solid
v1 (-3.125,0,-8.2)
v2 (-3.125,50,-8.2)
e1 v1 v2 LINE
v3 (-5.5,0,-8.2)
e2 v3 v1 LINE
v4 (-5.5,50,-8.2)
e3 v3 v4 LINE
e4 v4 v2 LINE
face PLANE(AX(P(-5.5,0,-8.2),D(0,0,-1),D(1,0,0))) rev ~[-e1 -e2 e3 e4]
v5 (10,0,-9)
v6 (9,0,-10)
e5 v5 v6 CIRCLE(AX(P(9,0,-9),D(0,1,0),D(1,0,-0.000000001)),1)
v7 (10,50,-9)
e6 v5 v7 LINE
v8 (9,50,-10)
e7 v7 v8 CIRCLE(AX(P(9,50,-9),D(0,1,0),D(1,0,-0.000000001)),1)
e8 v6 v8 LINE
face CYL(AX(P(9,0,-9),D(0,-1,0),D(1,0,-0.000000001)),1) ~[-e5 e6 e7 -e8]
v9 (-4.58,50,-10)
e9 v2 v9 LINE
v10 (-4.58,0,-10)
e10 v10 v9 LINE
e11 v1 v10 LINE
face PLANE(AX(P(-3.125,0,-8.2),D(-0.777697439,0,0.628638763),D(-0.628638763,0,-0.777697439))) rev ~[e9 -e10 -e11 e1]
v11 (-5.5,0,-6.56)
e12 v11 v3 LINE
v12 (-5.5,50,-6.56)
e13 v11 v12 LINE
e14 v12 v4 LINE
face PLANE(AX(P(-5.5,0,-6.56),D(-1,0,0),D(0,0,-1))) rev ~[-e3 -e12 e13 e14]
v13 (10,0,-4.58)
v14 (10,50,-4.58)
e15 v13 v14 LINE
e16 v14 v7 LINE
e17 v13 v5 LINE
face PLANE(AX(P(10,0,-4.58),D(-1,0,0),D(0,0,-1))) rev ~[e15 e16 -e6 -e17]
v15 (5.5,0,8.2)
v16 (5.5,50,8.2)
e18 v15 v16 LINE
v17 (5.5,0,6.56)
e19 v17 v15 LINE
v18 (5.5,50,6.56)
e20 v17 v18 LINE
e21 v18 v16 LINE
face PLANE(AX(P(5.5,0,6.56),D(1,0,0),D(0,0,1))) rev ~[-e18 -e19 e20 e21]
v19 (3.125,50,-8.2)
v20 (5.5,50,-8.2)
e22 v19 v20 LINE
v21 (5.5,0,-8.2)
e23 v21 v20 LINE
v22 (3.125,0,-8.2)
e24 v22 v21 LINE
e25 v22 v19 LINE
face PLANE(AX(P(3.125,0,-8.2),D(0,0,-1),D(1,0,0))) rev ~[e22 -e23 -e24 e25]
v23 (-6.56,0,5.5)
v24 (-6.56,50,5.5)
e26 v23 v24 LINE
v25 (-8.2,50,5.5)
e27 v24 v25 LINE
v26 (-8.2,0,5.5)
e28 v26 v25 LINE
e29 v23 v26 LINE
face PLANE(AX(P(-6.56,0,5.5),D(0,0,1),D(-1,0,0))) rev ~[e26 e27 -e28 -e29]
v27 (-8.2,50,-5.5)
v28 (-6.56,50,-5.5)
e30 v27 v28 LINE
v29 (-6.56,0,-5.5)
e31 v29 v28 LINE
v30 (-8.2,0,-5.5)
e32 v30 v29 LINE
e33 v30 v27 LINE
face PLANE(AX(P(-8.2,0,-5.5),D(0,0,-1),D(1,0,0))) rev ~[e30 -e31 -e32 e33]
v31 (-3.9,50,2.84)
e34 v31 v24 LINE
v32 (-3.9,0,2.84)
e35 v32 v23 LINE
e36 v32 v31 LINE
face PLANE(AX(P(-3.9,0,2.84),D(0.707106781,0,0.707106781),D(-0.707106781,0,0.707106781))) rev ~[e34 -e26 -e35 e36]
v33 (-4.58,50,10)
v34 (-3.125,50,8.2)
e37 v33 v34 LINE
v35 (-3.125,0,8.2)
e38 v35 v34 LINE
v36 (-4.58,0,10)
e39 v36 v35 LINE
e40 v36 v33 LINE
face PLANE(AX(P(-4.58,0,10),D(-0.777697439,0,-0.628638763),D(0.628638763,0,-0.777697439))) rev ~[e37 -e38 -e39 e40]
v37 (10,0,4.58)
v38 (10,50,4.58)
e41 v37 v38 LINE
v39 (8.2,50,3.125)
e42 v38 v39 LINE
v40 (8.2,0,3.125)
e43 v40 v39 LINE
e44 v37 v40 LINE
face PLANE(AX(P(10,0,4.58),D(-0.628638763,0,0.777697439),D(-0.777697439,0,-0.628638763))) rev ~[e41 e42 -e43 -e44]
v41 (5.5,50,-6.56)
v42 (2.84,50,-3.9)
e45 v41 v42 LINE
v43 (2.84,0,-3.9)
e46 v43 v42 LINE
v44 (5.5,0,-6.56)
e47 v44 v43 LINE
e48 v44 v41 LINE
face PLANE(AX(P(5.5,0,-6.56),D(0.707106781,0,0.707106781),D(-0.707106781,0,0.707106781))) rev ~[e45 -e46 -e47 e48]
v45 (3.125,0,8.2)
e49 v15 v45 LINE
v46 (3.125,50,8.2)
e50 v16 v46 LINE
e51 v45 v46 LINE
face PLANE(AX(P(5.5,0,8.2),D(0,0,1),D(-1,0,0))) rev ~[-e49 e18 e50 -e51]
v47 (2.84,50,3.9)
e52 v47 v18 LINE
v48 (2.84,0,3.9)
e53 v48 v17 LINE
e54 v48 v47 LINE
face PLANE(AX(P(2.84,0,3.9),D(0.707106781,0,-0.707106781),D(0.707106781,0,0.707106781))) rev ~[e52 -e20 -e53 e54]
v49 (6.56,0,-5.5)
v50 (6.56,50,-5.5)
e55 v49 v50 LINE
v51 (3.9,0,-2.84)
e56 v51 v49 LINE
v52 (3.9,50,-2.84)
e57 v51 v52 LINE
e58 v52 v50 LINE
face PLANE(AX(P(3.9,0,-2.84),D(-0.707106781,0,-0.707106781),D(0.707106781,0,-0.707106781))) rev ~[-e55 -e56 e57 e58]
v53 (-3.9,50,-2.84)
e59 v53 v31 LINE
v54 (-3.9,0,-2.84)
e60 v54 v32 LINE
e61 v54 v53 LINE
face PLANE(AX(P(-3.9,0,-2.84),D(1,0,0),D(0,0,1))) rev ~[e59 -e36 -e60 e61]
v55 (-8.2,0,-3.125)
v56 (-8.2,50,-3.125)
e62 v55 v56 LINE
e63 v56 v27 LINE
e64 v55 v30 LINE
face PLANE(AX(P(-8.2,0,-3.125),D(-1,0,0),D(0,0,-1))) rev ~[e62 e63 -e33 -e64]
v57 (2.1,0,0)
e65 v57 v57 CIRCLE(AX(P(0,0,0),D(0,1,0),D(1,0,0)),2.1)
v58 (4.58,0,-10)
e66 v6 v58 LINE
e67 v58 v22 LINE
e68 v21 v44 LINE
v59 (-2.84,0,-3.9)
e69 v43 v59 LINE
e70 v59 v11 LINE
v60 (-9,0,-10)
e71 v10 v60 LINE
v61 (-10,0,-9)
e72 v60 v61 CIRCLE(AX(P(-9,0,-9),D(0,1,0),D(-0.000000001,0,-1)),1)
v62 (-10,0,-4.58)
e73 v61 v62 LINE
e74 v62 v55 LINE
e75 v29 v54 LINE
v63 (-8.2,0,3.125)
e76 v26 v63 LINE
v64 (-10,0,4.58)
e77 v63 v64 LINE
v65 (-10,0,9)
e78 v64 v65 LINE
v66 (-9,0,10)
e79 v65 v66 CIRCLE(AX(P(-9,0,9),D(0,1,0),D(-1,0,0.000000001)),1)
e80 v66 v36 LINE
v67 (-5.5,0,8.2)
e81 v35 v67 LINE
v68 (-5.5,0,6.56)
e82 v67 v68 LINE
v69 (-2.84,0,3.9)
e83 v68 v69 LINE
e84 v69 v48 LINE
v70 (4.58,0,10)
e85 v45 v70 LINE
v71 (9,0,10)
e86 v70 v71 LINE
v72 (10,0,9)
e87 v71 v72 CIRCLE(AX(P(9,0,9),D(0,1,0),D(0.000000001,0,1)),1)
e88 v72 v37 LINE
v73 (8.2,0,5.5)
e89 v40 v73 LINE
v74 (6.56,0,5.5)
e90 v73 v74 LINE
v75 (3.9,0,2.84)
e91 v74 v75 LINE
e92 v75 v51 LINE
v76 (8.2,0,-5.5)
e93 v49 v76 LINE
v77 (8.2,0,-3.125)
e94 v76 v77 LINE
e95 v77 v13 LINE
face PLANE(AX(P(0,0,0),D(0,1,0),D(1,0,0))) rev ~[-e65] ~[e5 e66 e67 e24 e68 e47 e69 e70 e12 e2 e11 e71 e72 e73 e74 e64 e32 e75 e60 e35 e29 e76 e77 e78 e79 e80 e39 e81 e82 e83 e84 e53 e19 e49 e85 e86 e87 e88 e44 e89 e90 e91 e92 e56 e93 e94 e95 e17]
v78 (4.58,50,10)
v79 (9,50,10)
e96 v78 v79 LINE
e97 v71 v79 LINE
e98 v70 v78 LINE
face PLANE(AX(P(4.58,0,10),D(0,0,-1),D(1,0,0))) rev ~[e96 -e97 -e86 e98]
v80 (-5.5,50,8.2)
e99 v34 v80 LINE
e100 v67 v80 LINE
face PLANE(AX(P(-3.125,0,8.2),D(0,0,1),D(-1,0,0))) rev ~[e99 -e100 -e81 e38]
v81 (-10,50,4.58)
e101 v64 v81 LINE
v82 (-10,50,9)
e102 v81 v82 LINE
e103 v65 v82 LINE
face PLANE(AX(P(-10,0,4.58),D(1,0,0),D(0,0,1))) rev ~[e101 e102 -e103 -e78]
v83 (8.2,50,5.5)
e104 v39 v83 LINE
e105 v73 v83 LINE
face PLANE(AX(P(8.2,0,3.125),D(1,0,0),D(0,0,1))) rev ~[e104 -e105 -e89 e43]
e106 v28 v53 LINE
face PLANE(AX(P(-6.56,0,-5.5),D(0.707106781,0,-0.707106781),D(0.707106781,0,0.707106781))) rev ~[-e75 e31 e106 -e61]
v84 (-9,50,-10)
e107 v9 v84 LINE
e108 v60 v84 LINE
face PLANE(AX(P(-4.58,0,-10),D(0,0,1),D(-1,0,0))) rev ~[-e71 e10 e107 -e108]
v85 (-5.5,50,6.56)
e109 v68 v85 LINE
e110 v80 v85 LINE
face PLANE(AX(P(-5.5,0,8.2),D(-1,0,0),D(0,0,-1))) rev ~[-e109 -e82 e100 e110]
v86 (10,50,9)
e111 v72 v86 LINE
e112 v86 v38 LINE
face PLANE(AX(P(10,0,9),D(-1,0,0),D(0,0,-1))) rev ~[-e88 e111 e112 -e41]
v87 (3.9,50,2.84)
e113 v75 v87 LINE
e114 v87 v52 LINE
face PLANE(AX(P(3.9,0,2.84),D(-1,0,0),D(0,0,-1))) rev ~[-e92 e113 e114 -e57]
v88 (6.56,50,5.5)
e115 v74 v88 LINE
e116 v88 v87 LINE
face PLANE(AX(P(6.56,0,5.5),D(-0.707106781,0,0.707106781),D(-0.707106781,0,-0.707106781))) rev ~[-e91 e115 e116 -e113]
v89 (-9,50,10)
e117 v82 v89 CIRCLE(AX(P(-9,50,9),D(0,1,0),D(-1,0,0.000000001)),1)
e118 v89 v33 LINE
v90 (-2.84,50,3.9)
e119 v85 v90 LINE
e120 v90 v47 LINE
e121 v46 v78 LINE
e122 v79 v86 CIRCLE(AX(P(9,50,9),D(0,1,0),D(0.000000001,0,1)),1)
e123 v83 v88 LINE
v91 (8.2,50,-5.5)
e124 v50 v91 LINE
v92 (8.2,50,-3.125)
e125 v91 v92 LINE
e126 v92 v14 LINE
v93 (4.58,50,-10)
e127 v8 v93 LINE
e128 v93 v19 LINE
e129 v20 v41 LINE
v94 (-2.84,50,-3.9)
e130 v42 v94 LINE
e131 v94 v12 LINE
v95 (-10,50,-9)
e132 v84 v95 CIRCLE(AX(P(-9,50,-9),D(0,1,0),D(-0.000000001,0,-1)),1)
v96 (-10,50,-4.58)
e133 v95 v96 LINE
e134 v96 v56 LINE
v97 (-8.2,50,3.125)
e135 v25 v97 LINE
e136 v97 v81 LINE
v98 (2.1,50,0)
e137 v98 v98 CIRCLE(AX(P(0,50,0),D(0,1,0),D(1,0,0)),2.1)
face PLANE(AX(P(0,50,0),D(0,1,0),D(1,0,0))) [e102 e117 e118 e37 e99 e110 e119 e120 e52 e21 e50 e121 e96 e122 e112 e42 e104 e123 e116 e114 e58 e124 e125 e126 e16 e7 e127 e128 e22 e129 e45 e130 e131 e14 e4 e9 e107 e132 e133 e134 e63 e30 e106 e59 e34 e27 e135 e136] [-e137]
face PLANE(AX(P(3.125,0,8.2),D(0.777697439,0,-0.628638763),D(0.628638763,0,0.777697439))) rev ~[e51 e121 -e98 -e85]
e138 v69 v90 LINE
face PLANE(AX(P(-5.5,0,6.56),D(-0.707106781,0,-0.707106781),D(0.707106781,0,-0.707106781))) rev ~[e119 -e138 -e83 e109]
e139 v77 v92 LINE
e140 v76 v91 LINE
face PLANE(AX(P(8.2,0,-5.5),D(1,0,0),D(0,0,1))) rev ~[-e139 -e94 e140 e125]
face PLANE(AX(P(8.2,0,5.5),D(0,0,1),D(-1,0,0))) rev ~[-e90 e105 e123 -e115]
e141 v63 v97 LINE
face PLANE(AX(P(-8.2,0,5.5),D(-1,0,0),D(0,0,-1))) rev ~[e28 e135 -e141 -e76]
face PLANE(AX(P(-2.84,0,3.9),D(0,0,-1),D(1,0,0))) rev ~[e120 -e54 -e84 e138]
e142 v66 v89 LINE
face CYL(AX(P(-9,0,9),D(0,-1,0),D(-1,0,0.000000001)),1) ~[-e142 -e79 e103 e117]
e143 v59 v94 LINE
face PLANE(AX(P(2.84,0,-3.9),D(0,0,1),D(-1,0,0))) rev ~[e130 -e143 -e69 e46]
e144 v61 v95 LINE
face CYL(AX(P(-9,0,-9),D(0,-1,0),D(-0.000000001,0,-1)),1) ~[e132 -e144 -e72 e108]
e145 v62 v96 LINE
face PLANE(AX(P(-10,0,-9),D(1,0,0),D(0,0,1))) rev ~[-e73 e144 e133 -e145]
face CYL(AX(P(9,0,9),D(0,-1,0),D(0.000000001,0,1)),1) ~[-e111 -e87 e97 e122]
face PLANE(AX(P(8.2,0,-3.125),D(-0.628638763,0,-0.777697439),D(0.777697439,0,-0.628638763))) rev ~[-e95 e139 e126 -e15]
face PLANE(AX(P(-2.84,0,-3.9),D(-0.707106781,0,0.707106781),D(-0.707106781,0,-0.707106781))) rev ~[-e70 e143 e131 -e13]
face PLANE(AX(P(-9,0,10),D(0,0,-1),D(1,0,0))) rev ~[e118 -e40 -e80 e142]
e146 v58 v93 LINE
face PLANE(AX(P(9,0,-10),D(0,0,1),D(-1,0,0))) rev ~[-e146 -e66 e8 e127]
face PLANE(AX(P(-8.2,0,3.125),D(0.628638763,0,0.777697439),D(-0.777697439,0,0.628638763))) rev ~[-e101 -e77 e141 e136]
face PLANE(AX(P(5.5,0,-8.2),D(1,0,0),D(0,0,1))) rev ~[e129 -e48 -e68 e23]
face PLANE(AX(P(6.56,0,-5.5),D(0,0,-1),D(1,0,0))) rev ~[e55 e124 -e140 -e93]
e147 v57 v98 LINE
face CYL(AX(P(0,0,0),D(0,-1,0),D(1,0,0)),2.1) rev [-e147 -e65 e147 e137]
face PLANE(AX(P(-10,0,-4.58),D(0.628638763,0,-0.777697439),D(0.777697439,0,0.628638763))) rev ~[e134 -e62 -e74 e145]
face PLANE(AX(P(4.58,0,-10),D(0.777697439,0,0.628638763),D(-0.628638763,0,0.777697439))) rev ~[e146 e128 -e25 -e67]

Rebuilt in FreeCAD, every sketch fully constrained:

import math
import FreeCAD as App
import Part
import Sketcher

V = App.Vector

doc = App.newDocument("Part")
params = doc.addObject("Spreadsheet::Sheet", "Params")
for row, (alias, value) in enumerate([
    ("sketch1_radius", "1 mm"),
    ("sketch1_diameter", "4.2 mm"),
    ("sketch1_width", "4.42 mm"),
    ("sketch1_width2", "1.64 mm"),
    ("sketch1_width3", "5.68 mm"),
    ("pad1_length", "50 mm"),
], start=1):
    params.set(f"A{row}", alias)
    params.set(f"B{row}", "=" + value)
    params.setAlias(f"B{row}", alias)

body = doc.addObject("PartDesign::Body", "Body")

# Sketch on XZ plane
sketch1 = doc.addObject("Sketcher::SketchObject", "Sketch")
body.addObject(sketch1)
sketch1.AttachmentSupport = (doc.XZ_Plane, [""])
sketch1.MapMode = "FlatFace"
sketch1.addGeometry([
    Part.LineSegment(V(-5.5, -8.2, 0), V(-3.1, -8.2, 0)),  # 0
    Part.LineSegment(V(-3.1, -8.2, 0), V(-4.6, -10, 0)),  # 1
    Part.LineSegment(V(-4.6, -10, 0), V(-9, -10, 0)),  # 2
    Part.ArcOfCircle(Part.Circle(V(-9, -9, 0), V(0, 0, 1), 1), math.radians(-180), math.radians(-90)),  # 3
    Part.LineSegment(V(-10, -9, 0), V(-10, -4.6, 0)),  # 4
    Part.LineSegment(V(-10, -4.6, 0), V(-8.2, -3.1, 0)),  # 5
    Part.LineSegment(V(-8.2, -3.1, 0), V(-8.2, -5.5, 0)),  # 6
    Part.LineSegment(V(-8.2, -5.5, 0), V(-6.6, -5.5, 0)),  # 7
    Part.LineSegment(V(-6.6, -5.5, 0), V(-3.9, -2.8, 0)),  # 8
    Part.LineSegment(V(-3.9, -2.8, 0), V(-3.9, 2.8, 0)),  # 9
    Part.LineSegment(V(-3.9, 2.8, 0), V(-6.6, 5.5, 0)),  # 10
    Part.LineSegment(V(-6.6, 5.5, 0), V(-8.2, 5.5, 0)),  # 11
    Part.LineSegment(V(-8.2, 5.5, 0), V(-8.2, 3.1, 0)),  # 12
    Part.LineSegment(V(-8.2, 3.1, 0), V(-10, 4.6, 0)),  # 13
    Part.LineSegment(V(-10, 4.6, 0), V(-10, 9, 0)),  # 14
    Part.ArcOfCircle(Part.Circle(V(-9, 9, 0), V(0, 0, 1), 1), math.radians(90), math.radians(180)),  # 15
    Part.LineSegment(V(-9, 10, 0), V(-4.6, 10, 0)),  # 16
    Part.LineSegment(V(-4.6, 10, 0), V(-3.1, 8.2, 0)),  # 17
    Part.LineSegment(V(-3.1, 8.2, 0), V(-5.5, 8.2, 0)),  # 18
    Part.LineSegment(V(-5.5, 8.2, 0), V(-5.5, 6.6, 0)),  # 19
    Part.LineSegment(V(-5.5, 6.6, 0), V(-2.8, 3.9, 0)),  # 20
    Part.LineSegment(V(-2.8, 3.9, 0), V(2.8, 3.9, 0)),  # 21
    Part.LineSegment(V(2.8, 3.9, 0), V(5.5, 6.6, 0)),  # 22
    Part.LineSegment(V(5.5, 6.6, 0), V(5.5, 8.2, 0)),  # 23
    Part.LineSegment(V(5.5, 8.2, 0), V(3.1, 8.2, 0)),  # 24
    Part.LineSegment(V(3.1, 8.2, 0), V(4.6, 10, 0)),  # 25
    Part.LineSegment(V(4.6, 10, 0), V(9, 10, 0)),  # 26
    Part.ArcOfCircle(Part.Circle(V(9, 9, 0), V(0, 0, 1), 1), math.radians(0), math.radians(90)),  # 27
    Part.LineSegment(V(10, 9, 0), V(10, 4.6, 0)),  # 28
    Part.LineSegment(V(10, 4.6, 0), V(8.2, 3.1, 0)),  # 29
    Part.LineSegment(V(8.2, 3.1, 0), V(8.2, 5.5, 0)),  # 30
    Part.LineSegment(V(8.2, 5.5, 0), V(6.6, 5.5, 0)),  # 31
    Part.LineSegment(V(6.6, 5.5, 0), V(3.9, 2.8, 0)),  # 32
    Part.LineSegment(V(3.9, 2.8, 0), V(3.9, -2.8, 0)),  # 33
    Part.LineSegment(V(3.9, -2.8, 0), V(6.6, -5.5, 0)),  # 34
    Part.LineSegment(V(6.6, -5.5, 0), V(8.2, -5.5, 0)),  # 35
    Part.LineSegment(V(8.2, -5.5, 0), V(8.2, -3.1, 0)),  # 36
    Part.LineSegment(V(8.2, -3.1, 0), V(10, -4.6, 0)),  # 37
    Part.LineSegment(V(10, -4.6, 0), V(10, -9, 0)),  # 38
    Part.ArcOfCircle(Part.Circle(V(9, -9, 0), V(0, 0, 1), 1), math.radians(-90), math.radians(0)),  # 39
    Part.LineSegment(V(9, -10, 0), V(4.6, -10, 0)),  # 40
    Part.LineSegment(V(4.6, -10, 0), V(3.1, -8.2, 0)),  # 41
    Part.LineSegment(V(3.1, -8.2, 0), V(5.5, -8.2, 0)),  # 42
    Part.LineSegment(V(5.5, -8.2, 0), V(5.5, -6.6, 0)),  # 43
    Part.LineSegment(V(5.5, -6.6, 0), V(2.8, -3.9, 0)),  # 44
    Part.LineSegment(V(2.8, -3.9, 0), V(-2.8, -3.9, 0)),  # 45
    Part.LineSegment(V(-2.8, -3.9, 0), V(-5.5, -6.6, 0)),  # 46
    Part.LineSegment(V(-5.5, -6.6, 0), V(-5.5, -8.2, 0)),  # 47
    Part.Circle(V(0, 0, 0), V(0, 0, 1), 2.1),  # 48
], False)
sketch1.addConstraint([
    Sketcher.Constraint("Coincident", 0, 2, 1, 1),
    Sketcher.Constraint("Coincident", 1, 2, 2, 1),
    Sketcher.Constraint("Tangent", 2, 2, 3, 2),
    Sketcher.Constraint("Tangent", 3, 1, 4, 1),
    Sketcher.Constraint("Coincident", 4, 2, 5, 1),
    Sketcher.Constraint("Coincident", 5, 2, 6, 1),
    Sketcher.Constraint("Coincident", 6, 2, 7, 1),
    Sketcher.Constraint("Coincident", 7, 2, 8, 1),
    Sketcher.Constraint("Coincident", 8, 2, 9, 1),
    Sketcher.Constraint("Coincident", 9, 2, 10, 1),
    Sketcher.Constraint("Coincident", 10, 2, 11, 1),
    Sketcher.Constraint("Coincident", 11, 2, 12, 1),
    Sketcher.Constraint("Coincident", 12, 2, 13, 1),
    Sketcher.Constraint("Coincident", 13, 2, 14, 1),
    Sketcher.Constraint("Tangent", 14, 2, 15, 2),
    Sketcher.Constraint("Tangent", 15, 1, 16, 1),
    Sketcher.Constraint("Coincident", 16, 2, 17, 1),
    Sketcher.Constraint("Coincident", 17, 2, 18, 1),
    Sketcher.Constraint("Coincident", 18, 2, 19, 1),
    Sketcher.Constraint("Coincident", 19, 2, 20, 1),
    Sketcher.Constraint("Coincident", 20, 2, 21, 1),
    Sketcher.Constraint("Coincident", 21, 2, 22, 1),
    Sketcher.Constraint("Coincident", 22, 2, 23, 1),
    Sketcher.Constraint("Coincident", 23, 2, 24, 1),
    Sketcher.Constraint("Coincident", 24, 2, 25, 1),
    Sketcher.Constraint("Coincident", 25, 2, 26, 1),
    Sketcher.Constraint("Tangent", 26, 2, 27, 2),
    Sketcher.Constraint("Tangent", 27, 1, 28, 1),
    Sketcher.Constraint("Coincident", 28, 2, 29, 1),
    Sketcher.Constraint("Coincident", 29, 2, 30, 1),
    Sketcher.Constraint("Coincident", 30, 2, 31, 1),
    Sketcher.Constraint("Coincident", 31, 2, 32, 1),
    Sketcher.Constraint("Coincident", 32, 2, 33, 1),
    Sketcher.Constraint("Coincident", 33, 2, 34, 1),
    Sketcher.Constraint("Coincident", 34, 2, 35, 1),
    Sketcher.Constraint("Coincident", 35, 2, 36, 1),
    Sketcher.Constraint("Coincident", 36, 2, 37, 1),
    Sketcher.Constraint("Coincident", 37, 2, 38, 1),
    Sketcher.Constraint("Tangent", 38, 2, 39, 2),
    Sketcher.Constraint("Tangent", 39, 1, 40, 1),
    Sketcher.Constraint("Coincident", 40, 2, 41, 1),
    Sketcher.Constraint("Coincident", 41, 2, 42, 1),
    Sketcher.Constraint("Coincident", 42, 2, 43, 1),
    Sketcher.Constraint("Coincident", 43, 2, 44, 1),
    Sketcher.Constraint("Coincident", 44, 2, 45, 1),
    Sketcher.Constraint("Coincident", 45, 2, 46, 1),
    Sketcher.Constraint("Coincident", 46, 2, 47, 1),
    Sketcher.Constraint("Coincident", 47, 2, 0, 1),
    Sketcher.Constraint("Horizontal", 0),
    Sketcher.Constraint("Horizontal", 2),
    Sketcher.Constraint("Vertical", 4),
    Sketcher.Constraint("Vertical", 6),
    Sketcher.Constraint("Horizontal", 7),
    Sketcher.Constraint("Vertical", 9),
    Sketcher.Constraint("Horizontal", 11),
    Sketcher.Constraint("Vertical", 12),
    Sketcher.Constraint("Vertical", 14),
    Sketcher.Constraint("Horizontal", 16),
    Sketcher.Constraint("Horizontal", 18),
    Sketcher.Constraint("Vertical", 19),
    Sketcher.Constraint("Horizontal", 21),
    Sketcher.Constraint("Vertical", 23),
    Sketcher.Constraint("Horizontal", 24),
    Sketcher.Constraint("Horizontal", 26),
    Sketcher.Constraint("Vertical", 28),
    Sketcher.Constraint("Vertical", 30),
    Sketcher.Constraint("Horizontal", 31),
    Sketcher.Constraint("Vertical", 33),
    Sketcher.Constraint("Horizontal", 35),
    Sketcher.Constraint("Vertical", 36),
    Sketcher.Constraint("Vertical", 38),
    Sketcher.Constraint("Horizontal", 40),
    Sketcher.Constraint("Horizontal", 42),
    Sketcher.Constraint("Vertical", 43),
    Sketcher.Constraint("Horizontal", 45),
    Sketcher.Constraint("Vertical", 47),
    Sketcher.Constraint("Coincident", 48, 3, -1, 1),
    Sketcher.Constraint("Equal", 3, 15),
    Sketcher.Constraint("Equal", 15, 27),
    Sketcher.Constraint("Equal", 27, 39),
    Sketcher.Constraint("Symmetric", 3, 3, 27, 3, -1, 1),
    Sketcher.Constraint("Symmetric", 15, 3, 39, 3, -1, 1),
    Sketcher.Constraint("Symmetric", 0, 2, 24, 2, -1, 1),
    Sketcher.Constraint("Symmetric", 5, 2, 29, 2, -1, 1),
    Sketcher.Constraint("Symmetric", 7, 2, 31, 2, -1, 1),
    Sketcher.Constraint("Symmetric", 8, 2, 32, 2, -1, 1),
    Sketcher.Constraint("Symmetric", 10, 2, 34, 2, -1, 1),
    Sketcher.Constraint("Symmetric", 12, 2, 36, 2, -1, 1),
    Sketcher.Constraint("Symmetric", 17, 2, 41, 2, -1, 1),
    Sketcher.Constraint("Symmetric", 19, 2, 43, 2, -1, 1),
    Sketcher.Constraint("Symmetric", 20, 2, 44, 2, -1, 1),
    Sketcher.Constraint("Symmetric", 22, 2, 46, 2, -1, 1),
    Sketcher.Constraint("Symmetric", 15, 3, 27, 3, -2),
    Sketcher.Constraint("Symmetric", 19, 2, 22, 2, -2),
    Sketcher.Constraint("Symmetric", 17, 2, 24, 2, -2),
    Sketcher.Constraint("Symmetric", 12, 2, 29, 2, -2),
    Sketcher.Constraint("Symmetric", 10, 2, 31, 2, -2),
    Sketcher.Constraint("Perpendicular", 8, 10),
    Sketcher.Constraint("Perpendicular", 1, 13),
    Sketcher.Constraint("Perpendicular", 5, 17),
    Sketcher.Constraint("Parallel", 10, 20),
    Sketcher.Constraint("Perpendicular", 20, 22),
    Sketcher.Constraint("Perpendicular", 13, 25),
    Sketcher.Constraint("Perpendicular", 17, 29),
    Sketcher.Constraint("Perpendicular", 32, 34),
    Sketcher.Constraint("Perpendicular", 25, 37),
    Sketcher.Constraint("Perpendicular", 29, 41),
    Sketcher.Constraint("Perpendicular", 44, 46),
    Sketcher.Constraint("Horizontal", 13, 2, 28, 2),
    Sketcher.Constraint("Horizontal", 9, 2, 32, 2),
    Sketcher.Constraint("Equal", 40, 4),
    Sketcher.Constraint("Equal", 42, 6),
    Sketcher.Constraint("Equal", 45, 9),
    Sketcher.Constraint("Equal", 35, 19),
    Sketcher.Constraint("Equal", 1, 5),
    Sketcher.Constraint("Equal", 10, 20),
    Sketcher.Constraint("Radius", 3, 1.0),
    Sketcher.Constraint("Diameter", 48, 4.2),
    Sketcher.Constraint("DistanceX", 3, 3, -1, 1, 9.0),
    Sketcher.Constraint("DistanceX", 2, 2, 2, 1, 4.42),
    Sketcher.Constraint("DistanceX", 7, 1, 7, 2, 1.64),
    Sketcher.Constraint("DistanceX", 21, 1, 21, 2, 5.68),
    Sketcher.Constraint("DistanceY", 0, 2, -1, 1, 8.2),
    Sketcher.Constraint("DistanceY", 6, 2, -1, 1, 5.5),
    Sketcher.Constraint("DistanceX", 0, 1, 0, 2, 2.375),
])
sketch1.setExpression("Constraints[116]", "Params.sketch1_radius")
sketch1.setExpression("Constraints[117]", "Params.sketch1_diameter")
sketch1.setExpression("Constraints[119]", "Params.sketch1_width")
sketch1.setExpression("Constraints[120]", "Params.sketch1_width2")
sketch1.setExpression("Constraints[121]", "Params.sketch1_width3")
pad1 = doc.addObject("PartDesign::Pad", "Pad")
body.addObject(pad1)
pad1.Profile = sketch1
pad1.setExpression("Length", "Params.pad1_length")
pad1.Reversed = True

doc.recompute()
